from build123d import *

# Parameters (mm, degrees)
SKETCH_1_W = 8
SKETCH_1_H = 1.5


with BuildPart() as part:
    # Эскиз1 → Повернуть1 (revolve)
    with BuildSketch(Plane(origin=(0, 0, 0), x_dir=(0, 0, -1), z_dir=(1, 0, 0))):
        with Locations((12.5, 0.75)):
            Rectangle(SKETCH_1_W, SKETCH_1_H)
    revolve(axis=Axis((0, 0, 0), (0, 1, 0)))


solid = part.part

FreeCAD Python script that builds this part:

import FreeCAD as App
import Part
import Sketcher

V = App.Vector

doc = App.newDocument("Part")
params = doc.addObject("Spreadsheet::Sheet", "Params")
for row, (alias, value) in enumerate([
    ("sketch1_height", "8 mm"),
    ("sketch1_width", "1.5 mm"),
    ("revolution_angle", "360 deg"),
], start=1):
    params.set(f"A{row}", alias)
    params.set(f"B{row}", "=" + value)
    params.setAlias(f"B{row}", alias)

body = doc.addObject("PartDesign::Body", "Body")

# Sketch on YZ plane
sketch1 = body.newObject("Sketcher::SketchObject", "Sketch")
sketch1.AttachmentSupport = (doc.getObject("YZ_Plane"), [""])
sketch1.MapMode = "FlatFace"
sketch1.addGeometry([
    Part.LineSegment(V(1.5, -8.5, 0), V(0, -8.5, 0)),
    Part.LineSegment(V(0, -8.5, 0), V(0, -16.5, 0)),
    Part.LineSegment(V(0, -16.5, 0), V(1.5, -16.5, 0)),
    Part.LineSegment(V(1.5, -16.5, 0), V(1.5, -8.5, 0)),
], False)
sketch1.addConstraint([
    Sketcher.Constraint("Coincident", 0, 2, 1, 1),
    Sketcher.Constraint("Coincident", 1, 2, 2, 1),
    Sketcher.Constraint("Coincident", 2, 2, 3, 1),
    Sketcher.Constraint("Coincident", 3, 2, 0, 1),
    Sketcher.Constraint("Horizontal", 0),
    Sketcher.Constraint("Vertical", 1),
    Sketcher.Constraint("Horizontal", 2),
    Sketcher.Constraint("Vertical", 3),
    Sketcher.Constraint("PointOnObject", 0, 2, -2),
    Sketcher.Constraint("DistanceY", 1, 2, 1, 1, 8.0),
    Sketcher.Constraint("DistanceX", 0, 2, 0, 1, 1.5),
    Sketcher.Constraint("DistanceY", 0, 2, -1, 1, 8.5),
])
sketch1.setExpression("Constraints[9]", "Params.sketch1_height")
sketch1.setExpression("Constraints[10]", "Params.sketch1_width")
revolution = body.newObject("PartDesign::Revolution", "Revolution")
revolution.Profile = sketch1
revolution.ReferenceAxis = (sketch1, ["H_Axis"])
revolution.setExpression("Angle", "Params.revolution_angle")

doc.recompute()
